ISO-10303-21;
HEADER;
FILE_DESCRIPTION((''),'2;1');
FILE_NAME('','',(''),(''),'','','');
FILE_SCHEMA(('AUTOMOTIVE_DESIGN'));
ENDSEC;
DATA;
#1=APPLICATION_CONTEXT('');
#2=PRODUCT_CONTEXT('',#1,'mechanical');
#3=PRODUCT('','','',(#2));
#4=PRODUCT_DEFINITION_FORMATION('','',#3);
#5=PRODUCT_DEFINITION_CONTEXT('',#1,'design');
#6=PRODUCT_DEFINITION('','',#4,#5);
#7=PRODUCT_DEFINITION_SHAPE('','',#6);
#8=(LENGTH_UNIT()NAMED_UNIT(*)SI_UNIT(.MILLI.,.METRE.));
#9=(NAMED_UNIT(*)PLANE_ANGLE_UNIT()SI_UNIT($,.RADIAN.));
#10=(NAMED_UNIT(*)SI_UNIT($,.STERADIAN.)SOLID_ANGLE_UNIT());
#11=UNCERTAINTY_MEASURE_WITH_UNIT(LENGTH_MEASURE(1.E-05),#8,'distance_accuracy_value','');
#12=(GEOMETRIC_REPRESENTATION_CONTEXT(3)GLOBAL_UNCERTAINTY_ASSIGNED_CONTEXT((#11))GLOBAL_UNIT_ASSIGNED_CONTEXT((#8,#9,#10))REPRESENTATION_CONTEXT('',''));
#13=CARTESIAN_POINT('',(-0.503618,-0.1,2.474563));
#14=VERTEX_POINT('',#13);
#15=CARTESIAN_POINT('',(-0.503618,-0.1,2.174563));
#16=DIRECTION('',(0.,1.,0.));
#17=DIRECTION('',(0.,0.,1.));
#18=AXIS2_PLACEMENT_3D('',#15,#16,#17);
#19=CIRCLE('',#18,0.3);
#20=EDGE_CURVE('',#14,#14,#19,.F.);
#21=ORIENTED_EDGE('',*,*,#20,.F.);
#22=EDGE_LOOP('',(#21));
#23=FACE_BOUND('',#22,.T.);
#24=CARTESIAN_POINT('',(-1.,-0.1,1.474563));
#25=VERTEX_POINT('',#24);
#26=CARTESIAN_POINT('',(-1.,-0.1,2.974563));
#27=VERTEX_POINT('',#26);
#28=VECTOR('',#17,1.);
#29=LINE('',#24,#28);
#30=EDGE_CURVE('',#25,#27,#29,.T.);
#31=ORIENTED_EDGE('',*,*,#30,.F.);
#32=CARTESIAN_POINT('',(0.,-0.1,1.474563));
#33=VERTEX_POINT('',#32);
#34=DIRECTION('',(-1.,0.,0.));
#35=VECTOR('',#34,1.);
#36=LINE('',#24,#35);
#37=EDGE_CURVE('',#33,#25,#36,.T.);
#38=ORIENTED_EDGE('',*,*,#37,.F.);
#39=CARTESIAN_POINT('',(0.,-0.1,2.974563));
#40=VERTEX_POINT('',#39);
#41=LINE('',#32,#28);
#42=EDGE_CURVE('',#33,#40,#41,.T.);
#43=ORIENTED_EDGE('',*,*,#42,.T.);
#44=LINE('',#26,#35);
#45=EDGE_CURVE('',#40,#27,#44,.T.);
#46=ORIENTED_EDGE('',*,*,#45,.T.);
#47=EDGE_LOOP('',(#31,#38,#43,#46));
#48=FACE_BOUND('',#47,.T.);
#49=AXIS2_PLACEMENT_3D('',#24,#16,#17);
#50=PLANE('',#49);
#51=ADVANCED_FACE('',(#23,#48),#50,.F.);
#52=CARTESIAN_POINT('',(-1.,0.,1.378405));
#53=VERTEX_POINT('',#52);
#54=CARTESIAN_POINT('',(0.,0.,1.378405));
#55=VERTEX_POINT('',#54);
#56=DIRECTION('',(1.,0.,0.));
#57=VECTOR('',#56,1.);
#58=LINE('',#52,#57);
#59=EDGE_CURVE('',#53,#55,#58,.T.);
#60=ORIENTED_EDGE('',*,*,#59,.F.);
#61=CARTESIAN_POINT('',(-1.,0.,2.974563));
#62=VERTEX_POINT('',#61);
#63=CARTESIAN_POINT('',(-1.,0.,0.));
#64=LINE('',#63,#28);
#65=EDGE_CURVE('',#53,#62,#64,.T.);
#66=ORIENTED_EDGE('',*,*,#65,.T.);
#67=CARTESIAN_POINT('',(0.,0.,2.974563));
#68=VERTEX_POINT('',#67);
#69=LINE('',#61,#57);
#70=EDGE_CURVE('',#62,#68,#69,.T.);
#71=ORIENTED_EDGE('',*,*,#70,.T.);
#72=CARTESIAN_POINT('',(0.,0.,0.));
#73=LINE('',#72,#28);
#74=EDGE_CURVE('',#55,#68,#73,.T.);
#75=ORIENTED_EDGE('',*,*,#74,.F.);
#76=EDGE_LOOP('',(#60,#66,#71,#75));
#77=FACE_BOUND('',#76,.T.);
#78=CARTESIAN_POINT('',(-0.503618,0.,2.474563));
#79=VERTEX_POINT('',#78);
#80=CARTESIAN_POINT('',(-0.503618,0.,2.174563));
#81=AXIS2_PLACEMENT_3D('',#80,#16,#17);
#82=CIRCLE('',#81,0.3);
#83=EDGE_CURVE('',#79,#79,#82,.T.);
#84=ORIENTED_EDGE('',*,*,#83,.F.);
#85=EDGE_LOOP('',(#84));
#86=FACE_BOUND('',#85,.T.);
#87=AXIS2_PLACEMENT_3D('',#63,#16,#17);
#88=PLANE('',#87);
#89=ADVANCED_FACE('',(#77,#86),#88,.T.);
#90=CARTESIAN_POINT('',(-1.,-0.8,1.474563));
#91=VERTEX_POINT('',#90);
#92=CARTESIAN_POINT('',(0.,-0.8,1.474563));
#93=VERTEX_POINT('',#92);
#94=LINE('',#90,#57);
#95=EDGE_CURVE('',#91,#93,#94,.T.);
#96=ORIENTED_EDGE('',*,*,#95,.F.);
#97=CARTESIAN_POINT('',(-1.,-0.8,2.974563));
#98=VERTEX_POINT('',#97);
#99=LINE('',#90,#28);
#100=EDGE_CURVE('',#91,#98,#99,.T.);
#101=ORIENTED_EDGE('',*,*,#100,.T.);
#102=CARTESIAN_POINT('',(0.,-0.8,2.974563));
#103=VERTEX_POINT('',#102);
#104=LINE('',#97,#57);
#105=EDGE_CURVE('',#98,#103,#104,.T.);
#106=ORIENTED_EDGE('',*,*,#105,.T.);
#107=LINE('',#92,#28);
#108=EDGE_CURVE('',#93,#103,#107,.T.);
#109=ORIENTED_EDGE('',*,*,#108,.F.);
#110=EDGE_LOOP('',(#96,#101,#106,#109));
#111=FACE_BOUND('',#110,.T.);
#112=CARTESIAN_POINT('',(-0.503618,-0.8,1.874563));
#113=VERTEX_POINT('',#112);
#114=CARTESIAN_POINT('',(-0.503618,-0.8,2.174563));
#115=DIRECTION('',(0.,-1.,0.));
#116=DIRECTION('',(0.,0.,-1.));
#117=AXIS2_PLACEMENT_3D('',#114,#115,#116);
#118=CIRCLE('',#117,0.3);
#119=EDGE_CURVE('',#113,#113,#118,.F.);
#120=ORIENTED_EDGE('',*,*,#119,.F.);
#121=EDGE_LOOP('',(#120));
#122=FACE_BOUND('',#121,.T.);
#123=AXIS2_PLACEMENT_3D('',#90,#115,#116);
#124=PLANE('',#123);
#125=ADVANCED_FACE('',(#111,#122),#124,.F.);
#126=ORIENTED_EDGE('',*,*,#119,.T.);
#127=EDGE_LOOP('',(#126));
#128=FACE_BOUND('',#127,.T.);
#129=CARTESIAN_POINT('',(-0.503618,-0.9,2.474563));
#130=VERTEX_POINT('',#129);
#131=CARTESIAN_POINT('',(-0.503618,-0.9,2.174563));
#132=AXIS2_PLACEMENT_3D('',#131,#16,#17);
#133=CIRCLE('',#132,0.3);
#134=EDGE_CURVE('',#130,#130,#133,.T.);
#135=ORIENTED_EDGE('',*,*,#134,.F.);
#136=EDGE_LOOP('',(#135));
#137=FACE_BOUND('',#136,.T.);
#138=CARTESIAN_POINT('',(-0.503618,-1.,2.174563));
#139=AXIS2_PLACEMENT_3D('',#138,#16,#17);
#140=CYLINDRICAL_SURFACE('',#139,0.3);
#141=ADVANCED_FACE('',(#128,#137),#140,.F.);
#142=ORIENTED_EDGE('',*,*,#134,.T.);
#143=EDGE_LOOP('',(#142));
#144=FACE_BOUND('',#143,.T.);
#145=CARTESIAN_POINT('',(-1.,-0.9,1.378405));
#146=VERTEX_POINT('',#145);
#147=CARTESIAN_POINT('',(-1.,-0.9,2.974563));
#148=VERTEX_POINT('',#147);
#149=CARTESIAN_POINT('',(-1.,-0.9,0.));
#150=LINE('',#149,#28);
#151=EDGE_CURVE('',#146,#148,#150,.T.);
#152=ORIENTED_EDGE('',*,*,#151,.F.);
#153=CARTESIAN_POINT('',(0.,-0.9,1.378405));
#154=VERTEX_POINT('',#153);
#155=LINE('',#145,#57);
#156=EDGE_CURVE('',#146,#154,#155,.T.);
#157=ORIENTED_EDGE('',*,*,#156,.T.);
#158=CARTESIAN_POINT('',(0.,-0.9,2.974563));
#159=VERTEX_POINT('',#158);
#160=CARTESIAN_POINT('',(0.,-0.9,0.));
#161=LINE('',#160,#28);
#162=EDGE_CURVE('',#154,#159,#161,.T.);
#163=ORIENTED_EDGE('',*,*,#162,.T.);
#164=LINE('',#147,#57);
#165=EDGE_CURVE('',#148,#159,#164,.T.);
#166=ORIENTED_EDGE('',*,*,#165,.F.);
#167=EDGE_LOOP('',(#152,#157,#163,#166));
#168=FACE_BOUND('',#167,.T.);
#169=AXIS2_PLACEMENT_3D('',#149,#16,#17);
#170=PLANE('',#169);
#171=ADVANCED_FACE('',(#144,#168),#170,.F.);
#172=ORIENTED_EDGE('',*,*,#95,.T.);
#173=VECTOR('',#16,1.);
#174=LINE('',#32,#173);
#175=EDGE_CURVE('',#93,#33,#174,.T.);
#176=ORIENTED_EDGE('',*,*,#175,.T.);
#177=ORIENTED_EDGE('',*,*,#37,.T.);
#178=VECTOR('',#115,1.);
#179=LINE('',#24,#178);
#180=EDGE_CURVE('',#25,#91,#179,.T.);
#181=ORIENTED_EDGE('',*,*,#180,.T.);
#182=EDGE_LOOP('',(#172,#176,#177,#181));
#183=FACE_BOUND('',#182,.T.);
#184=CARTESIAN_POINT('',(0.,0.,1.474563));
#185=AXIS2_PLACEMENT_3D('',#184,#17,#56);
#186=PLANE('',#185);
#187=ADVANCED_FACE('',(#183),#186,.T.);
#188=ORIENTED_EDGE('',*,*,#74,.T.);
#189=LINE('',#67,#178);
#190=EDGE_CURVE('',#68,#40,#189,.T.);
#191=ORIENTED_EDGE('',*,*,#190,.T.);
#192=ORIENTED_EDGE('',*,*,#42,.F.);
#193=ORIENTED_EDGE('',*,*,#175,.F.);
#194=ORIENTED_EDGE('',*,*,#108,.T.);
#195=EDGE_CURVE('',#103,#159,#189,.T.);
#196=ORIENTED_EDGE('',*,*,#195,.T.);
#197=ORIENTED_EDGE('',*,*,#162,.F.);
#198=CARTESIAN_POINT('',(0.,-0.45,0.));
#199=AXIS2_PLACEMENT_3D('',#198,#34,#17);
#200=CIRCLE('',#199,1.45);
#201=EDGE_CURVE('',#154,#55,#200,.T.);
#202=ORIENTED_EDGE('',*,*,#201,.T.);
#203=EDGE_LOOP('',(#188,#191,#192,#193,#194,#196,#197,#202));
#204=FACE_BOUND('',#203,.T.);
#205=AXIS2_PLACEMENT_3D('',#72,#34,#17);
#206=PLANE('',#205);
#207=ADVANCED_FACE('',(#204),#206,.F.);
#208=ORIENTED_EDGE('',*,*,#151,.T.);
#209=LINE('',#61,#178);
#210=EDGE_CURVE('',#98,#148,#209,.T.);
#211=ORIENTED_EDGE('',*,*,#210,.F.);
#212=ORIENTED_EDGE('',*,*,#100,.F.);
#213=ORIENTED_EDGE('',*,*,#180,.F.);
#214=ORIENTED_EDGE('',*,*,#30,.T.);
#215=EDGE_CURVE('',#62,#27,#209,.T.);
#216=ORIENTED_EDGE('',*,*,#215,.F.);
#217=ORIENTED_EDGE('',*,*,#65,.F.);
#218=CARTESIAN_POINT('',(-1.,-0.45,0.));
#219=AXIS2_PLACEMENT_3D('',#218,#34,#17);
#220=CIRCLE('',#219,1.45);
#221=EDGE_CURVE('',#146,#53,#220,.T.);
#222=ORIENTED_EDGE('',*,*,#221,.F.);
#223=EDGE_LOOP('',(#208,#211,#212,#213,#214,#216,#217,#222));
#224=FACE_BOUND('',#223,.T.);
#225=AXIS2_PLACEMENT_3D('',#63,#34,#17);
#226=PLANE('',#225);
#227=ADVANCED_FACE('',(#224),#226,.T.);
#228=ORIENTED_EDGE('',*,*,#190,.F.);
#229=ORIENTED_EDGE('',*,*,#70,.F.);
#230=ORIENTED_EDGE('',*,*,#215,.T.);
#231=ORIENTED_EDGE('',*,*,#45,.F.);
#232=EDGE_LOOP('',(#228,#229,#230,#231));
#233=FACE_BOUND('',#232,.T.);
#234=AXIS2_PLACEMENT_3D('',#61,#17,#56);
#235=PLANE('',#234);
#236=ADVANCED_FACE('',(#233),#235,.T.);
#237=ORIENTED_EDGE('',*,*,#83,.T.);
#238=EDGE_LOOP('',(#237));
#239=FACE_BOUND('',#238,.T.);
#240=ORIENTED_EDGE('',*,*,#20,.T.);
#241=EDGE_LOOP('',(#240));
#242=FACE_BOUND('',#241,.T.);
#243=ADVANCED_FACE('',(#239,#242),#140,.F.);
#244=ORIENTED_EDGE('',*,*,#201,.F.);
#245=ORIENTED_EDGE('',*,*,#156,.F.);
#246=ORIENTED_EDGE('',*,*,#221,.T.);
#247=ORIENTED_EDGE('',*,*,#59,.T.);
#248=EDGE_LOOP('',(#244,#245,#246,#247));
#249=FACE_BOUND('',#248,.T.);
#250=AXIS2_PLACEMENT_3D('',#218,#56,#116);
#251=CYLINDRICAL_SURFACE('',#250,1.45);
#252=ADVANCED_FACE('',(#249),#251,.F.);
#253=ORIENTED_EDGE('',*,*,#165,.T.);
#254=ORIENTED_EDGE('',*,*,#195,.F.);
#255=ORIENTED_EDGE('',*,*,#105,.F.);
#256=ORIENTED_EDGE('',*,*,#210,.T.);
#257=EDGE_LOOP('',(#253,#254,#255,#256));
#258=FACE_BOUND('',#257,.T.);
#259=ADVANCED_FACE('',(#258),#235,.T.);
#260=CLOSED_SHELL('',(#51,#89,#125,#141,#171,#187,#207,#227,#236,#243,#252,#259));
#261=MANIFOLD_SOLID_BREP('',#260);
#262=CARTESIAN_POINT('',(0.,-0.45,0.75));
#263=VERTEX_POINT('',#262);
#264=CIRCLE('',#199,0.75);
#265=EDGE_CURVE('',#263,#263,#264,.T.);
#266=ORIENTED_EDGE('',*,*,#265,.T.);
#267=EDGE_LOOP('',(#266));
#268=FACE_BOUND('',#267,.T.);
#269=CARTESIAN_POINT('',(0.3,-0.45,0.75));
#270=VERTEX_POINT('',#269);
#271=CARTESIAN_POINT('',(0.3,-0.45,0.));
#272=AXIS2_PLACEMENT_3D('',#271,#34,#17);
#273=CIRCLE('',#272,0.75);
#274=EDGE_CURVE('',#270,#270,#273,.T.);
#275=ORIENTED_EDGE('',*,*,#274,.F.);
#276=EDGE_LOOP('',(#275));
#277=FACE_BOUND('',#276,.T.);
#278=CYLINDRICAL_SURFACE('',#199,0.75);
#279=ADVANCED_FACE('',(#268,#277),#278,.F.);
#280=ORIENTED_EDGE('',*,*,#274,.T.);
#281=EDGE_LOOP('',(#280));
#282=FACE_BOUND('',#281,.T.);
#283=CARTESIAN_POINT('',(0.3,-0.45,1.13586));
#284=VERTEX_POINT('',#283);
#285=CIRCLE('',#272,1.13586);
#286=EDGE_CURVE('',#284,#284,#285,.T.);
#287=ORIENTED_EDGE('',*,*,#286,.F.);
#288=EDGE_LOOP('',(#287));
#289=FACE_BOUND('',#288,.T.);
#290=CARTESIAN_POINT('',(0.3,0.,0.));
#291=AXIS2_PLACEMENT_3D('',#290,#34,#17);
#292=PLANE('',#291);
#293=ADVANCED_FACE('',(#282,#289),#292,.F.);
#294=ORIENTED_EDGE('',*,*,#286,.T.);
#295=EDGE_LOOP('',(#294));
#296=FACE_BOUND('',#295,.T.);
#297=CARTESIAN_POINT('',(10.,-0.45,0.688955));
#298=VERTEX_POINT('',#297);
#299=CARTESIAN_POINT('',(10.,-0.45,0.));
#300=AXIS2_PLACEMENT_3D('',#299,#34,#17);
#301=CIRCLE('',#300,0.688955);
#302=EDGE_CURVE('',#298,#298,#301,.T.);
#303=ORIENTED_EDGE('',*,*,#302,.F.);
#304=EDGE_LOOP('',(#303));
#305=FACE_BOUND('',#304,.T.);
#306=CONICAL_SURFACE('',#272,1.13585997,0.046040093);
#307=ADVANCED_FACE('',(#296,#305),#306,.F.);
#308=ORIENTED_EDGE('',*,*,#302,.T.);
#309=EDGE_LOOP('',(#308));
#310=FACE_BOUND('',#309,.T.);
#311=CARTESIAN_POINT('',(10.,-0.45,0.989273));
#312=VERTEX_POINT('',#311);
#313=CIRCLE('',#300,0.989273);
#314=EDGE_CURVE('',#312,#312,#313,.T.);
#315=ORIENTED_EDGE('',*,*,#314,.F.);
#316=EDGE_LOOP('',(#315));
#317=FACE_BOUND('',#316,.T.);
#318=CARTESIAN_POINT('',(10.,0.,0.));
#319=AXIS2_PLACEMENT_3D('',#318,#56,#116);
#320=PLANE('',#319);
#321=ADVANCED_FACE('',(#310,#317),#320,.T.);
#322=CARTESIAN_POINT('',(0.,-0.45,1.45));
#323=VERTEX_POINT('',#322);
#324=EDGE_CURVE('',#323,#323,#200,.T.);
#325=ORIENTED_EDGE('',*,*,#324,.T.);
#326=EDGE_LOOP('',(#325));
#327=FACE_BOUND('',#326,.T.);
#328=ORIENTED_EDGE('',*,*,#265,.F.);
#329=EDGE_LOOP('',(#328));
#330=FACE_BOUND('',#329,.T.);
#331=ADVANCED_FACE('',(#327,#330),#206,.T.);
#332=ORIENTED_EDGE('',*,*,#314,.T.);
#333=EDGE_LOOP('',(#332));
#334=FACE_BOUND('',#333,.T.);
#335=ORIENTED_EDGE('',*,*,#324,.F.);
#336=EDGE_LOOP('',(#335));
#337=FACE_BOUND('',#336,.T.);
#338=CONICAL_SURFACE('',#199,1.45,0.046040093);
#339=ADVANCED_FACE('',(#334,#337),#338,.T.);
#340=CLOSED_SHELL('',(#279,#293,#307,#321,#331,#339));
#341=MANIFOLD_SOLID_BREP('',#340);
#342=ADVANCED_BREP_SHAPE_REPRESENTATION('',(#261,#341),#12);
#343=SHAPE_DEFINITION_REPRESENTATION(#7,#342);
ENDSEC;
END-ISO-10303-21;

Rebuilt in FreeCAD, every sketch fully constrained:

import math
import FreeCAD as App
import Part
import Sketcher
from FreeCAD import Vector
Q = App.Units.Quantity

doc = App.newDocument("Part")
body = doc.addObject("PartDesign::Body", "Body")

# Sketch on XY plane
sketch1 = doc.addObject("Sketcher::SketchObject", "Sketch")
body.addObject(sketch1)
sketch1.AttachmentSupport = (doc.XY_Plane, [""])
sketch1.MapMode = "FlatFace"
sketch1.addGeometry(Part.LineSegment(Vector(0, 1, 0), Vector(0, 0.3, 0)), False)
sketch1.addGeometry(Part.LineSegment(Vector(0, 0.3, 0), Vector(0.3, 0.3, 0)), False)
sketch1.addGeometry(Part.LineSegment(Vector(0.3, 0.3, 0), Vector(0.3, 0.68586, 0)), False)
sketch1.addGeometry(Part.LineSegment(Vector(0.3, 0.68586, 0), Vector(10, 0.238955, 0)), False)
sketch1.addGeometry(Part.LineSegment(Vector(10, 0.238955, 0), Vector(10, 0.539273, 0)), False)
sketch1.addGeometry(Part.LineSegment(Vector(10, 0.539273, 0), Vector(0, 1, 0)), False)
sketch1.addGeometry(Part.LineSegment(Vector(0, -0.45, 0), Vector(10, -0.45, 0)), True)  # axis
sketch1.addConstraint(Sketcher.Constraint("Coincident", 0, 2, 1, 1))
sketch1.addConstraint(Sketcher.Constraint("Coincident", 1, 2, 2, 1))
sketch1.addConstraint(Sketcher.Constraint("Coincident", 2, 2, 3, 1))
sketch1.addConstraint(Sketcher.Constraint("Coincident", 3, 2, 4, 1))
sketch1.addConstraint(Sketcher.Constraint("Coincident", 4, 2, 5, 1))
sketch1.addConstraint(Sketcher.Constraint("Coincident", 5, 2, 0, 1))
sketch1.addConstraint(Sketcher.Constraint("Vertical", 0))
sketch1.addConstraint(Sketcher.Constraint("Horizontal", 1))
sketch1.addConstraint(Sketcher.Constraint("Vertical", 2))
sketch1.addConstraint(Sketcher.Constraint("Vertical", 4))
sketch1.addConstraint(Sketcher.Constraint("Horizontal", 6))
sketch1.addConstraint(Sketcher.Constraint("PointOnObject", 0, 2, -2))
sketch1.addConstraint(Sketcher.Constraint("PointOnObject", 6, 1, -2))
sketch1.addConstraint(Sketcher.Constraint("Parallel", 3, 5))
sketch1.addConstraint(Sketcher.Constraint("Vertical", 4, 2, 6, 2))
sketch1.addConstraint(Sketcher.Constraint("DistanceX", 6, 1, 6, 2, Q("10 mm")))
sketch1.addConstraint(Sketcher.Constraint("DistanceX", 1, 1, 1, 2, Q("0.3 mm")))
sketch1.addConstraint(Sketcher.Constraint("DistanceY", 0, 2, 0, 1, Q("0.7 mm")))
sketch1.addConstraint(Sketcher.Constraint("DistanceY", -1, 1, 5, 2, Q("1 mm")))
sketch1.addConstraint(Sketcher.Constraint("DistanceY", 6, 1, -1, 1, Q("0.45 mm")))
sketch1.addConstraint(Sketcher.Constraint("DistanceY", 2, 1, 2, 2, Q("0.38586 mm")))
sketch1.addConstraint(Sketcher.Constraint("DistanceY", 4, 1, 4, 2, Q("0.300318 mm")))
revolution = doc.addObject("PartDesign::Revolution", "Revolution")
body.addObject(revolution)
revolution.Profile = sketch1
revolution.ReferenceAxis = (sketch1, ["Axis0"])
revolution.Angle = 360
body2 = doc.addObject("PartDesign::Body", "Body001")

# Sketch on YZ plane
sketch2 = doc.addObject("Sketcher::SketchObject", "Sketch001")
body2.addObject(sketch2)
sketch2.AttachmentSupport = (doc.getObject("YZ_Plane001"), [""])
sketch2.MapMode = "FlatFace"
sketch2.addGeometry(Part.LineSegment(Vector(0, 2.974563, 0), Vector(0, 1.378405, 0)), False)
sketch2.addGeometry(Part.ArcOfCircle(Part.Circle(Vector(-0.45, 0, 0), Vector(0, 0, 1), 1.45), math.radians(71.919987), math.radians(90)), False)
sketch2.addGeometry(Part.ArcOfCircle(Part.Circle(Vector(-0.45, 0, 0), Vector(0, 0, 1), 1.45), math.radians(90), math.radians(108.080013)), False)
sketch2.addGeometry(Part.LineSegment(Vector(-0.9, 1.378405, 0), Vector(-0.9, 2.974563, 0)), False)
sketch2.addGeometry(Part.LineSegment(Vector(-0.9, 2.974563, 0), Vector(0, 2.974563, 0)), False)
sketch2.addConstraint(Sketcher.Constraint("Coincident", 0, 2, 1, 1))
sketch2.addConstraint(Sketcher.Constraint("Tangent", 1, 2, 2, 1))
sketch2.addConstraint(Sketcher.Constraint("Coincident", 2, 2, 3, 1))
sketch2.addConstraint(Sketcher.Constraint("Coincident", 3, 2, 4, 1))
sketch2.addConstraint(Sketcher.Constraint("Coincident", 4, 2, 0, 1))
sketch2.addConstraint(Sketcher.Constraint("Vertical", 0))
sketch2.addConstraint(Sketcher.Constraint("Vertical", 3))
sketch2.addConstraint(Sketcher.Constraint("Horizontal", 4))
sketch2.addConstraint(Sketcher.Constraint("Equal", 1, 2))
sketch2.addConstraint(Sketcher.Constraint("PointOnObject", 1, 3, -1))
sketch2.addConstraint(Sketcher.Constraint("PointOnObject", 0, 2, -2))
sketch2.addConstraint(Sketcher.Constraint("Horizontal", 0, 2, 2, 2))
sketch2.addConstraint(Sketcher.Constraint("Vertical", 2, 3, 1, 2))
sketch2.addConstraint(Sketcher.Constraint("Radius", 1, Q("1.45 mm")))
sketch2.addConstraint(Sketcher.Constraint("DistanceX", 4, 1, 4, 2, Q("0.9 mm")))
sketch2.addConstraint(Sketcher.Constraint("DistanceY", 0, 2, 0, 1, Q("1.596158 mm")))
pad1 = doc.addObject("PartDesign::Pad", "Pad")
body2.addObject(pad1)
pad1.Profile = sketch2
pad1.Length = 1
pad1.Reversed = True

# Sketch on XZ plane
sketch3 = doc.addObject("Sketcher::SketchObject", "Sketch002")
body2.addObject(sketch3)
sketch3.AttachmentSupport = (doc.getObject("XZ_Plane001"), [""])
sketch3.MapMode = "FlatFace"
sketch3.addGeometry(Part.Circle(Vector(-0.503618, 2.174563, 0), Vector(0, 0, 1), 0.3), False)
sketch3.addConstraint(Sketcher.Constraint("Diameter", 0, Q("0.6 mm")))
sketch3.addConstraint(Sketcher.Constraint("DistanceX", 0, 3, -1, 1, Q("0.503618 mm")))
sketch3.addConstraint(Sketcher.Constraint("DistanceY", -1, 1, 0, 3, Q("2.174563 mm")))
pocket1 = doc.addObject("PartDesign::Pocket", "Pocket")
body2.addObject(pocket1)
pocket1.Profile = sketch3
pocket1.Length = 1
pocket1.Reversed = True

# Sketch on XY plane
sketch4 = doc.addObject("Sketcher::SketchObject", "Sketch003")
body2.addObject(sketch4)
sketch4.AttachmentSupport = (doc.getObject("XY_Plane001"), [""])
sketch4.MapMode = "FlatFace"
sketch4.AttachmentOffset = App.Placement(Vector(0, 0, 2.974563), App.Rotation())
sketch4.addGeometry(Part.LineSegment(Vector(-1, -0.1, 0), Vector(-1, -0.8, 0)), False)
sketch4.addGeometry(Part.LineSegment(Vector(-1, -0.8, 0), Vector(0, -0.8, 0)), False)
sketch4.addGeometry(Part.LineSegment(Vector(0, -0.8, 0), Vector(0, -0.1, 0)), False)
sketch4.addGeometry(Part.LineSegment(Vector(0, -0.1, 0), Vector(-1, -0.1, 0)), False)
sketch4.addConstraint(Sketcher.Constraint("Coincident", 0, 2, 1, 1))
sketch4.addConstraint(Sketcher.Constraint("Coincident", 1, 2, 2, 1))
sketch4.addConstraint(Sketcher.Constraint("Coincident", 2, 2, 3, 1))
sketch4.addConstraint(Sketcher.Constraint("Coincident", 3, 2, 0, 1))
sketch4.addConstraint(Sketcher.Constraint("Vertical", 0))
sketch4.addConstraint(Sketcher.Constraint("Horizontal", 1))
sketch4.addConstraint(Sketcher.Constraint("Vertical", 2))
sketch4.addConstraint(Sketcher.Constraint("Horizontal", 3))
sketch4.addConstraint(Sketcher.Constraint("PointOnObject", 1, 2, -2))
sketch4.addConstraint(Sketcher.Constraint("DistanceX", 1, 1, 1, 2, Q("1 mm")))
sketch4.addConstraint(Sketcher.Constraint("DistanceY", 0, 2, 0, 1, Q("0.7 mm")))
sketch4.addConstraint(Sketcher.Constraint("DistanceY", 0, 2, -1, 1, Q("0.8 mm")))
pocket2 = doc.addObject("PartDesign::Pocket", "Pocket001")
body2.addObject(pocket2)
pocket2.Profile = sketch4
pocket2.Length = 1.5

doc.recompute()
